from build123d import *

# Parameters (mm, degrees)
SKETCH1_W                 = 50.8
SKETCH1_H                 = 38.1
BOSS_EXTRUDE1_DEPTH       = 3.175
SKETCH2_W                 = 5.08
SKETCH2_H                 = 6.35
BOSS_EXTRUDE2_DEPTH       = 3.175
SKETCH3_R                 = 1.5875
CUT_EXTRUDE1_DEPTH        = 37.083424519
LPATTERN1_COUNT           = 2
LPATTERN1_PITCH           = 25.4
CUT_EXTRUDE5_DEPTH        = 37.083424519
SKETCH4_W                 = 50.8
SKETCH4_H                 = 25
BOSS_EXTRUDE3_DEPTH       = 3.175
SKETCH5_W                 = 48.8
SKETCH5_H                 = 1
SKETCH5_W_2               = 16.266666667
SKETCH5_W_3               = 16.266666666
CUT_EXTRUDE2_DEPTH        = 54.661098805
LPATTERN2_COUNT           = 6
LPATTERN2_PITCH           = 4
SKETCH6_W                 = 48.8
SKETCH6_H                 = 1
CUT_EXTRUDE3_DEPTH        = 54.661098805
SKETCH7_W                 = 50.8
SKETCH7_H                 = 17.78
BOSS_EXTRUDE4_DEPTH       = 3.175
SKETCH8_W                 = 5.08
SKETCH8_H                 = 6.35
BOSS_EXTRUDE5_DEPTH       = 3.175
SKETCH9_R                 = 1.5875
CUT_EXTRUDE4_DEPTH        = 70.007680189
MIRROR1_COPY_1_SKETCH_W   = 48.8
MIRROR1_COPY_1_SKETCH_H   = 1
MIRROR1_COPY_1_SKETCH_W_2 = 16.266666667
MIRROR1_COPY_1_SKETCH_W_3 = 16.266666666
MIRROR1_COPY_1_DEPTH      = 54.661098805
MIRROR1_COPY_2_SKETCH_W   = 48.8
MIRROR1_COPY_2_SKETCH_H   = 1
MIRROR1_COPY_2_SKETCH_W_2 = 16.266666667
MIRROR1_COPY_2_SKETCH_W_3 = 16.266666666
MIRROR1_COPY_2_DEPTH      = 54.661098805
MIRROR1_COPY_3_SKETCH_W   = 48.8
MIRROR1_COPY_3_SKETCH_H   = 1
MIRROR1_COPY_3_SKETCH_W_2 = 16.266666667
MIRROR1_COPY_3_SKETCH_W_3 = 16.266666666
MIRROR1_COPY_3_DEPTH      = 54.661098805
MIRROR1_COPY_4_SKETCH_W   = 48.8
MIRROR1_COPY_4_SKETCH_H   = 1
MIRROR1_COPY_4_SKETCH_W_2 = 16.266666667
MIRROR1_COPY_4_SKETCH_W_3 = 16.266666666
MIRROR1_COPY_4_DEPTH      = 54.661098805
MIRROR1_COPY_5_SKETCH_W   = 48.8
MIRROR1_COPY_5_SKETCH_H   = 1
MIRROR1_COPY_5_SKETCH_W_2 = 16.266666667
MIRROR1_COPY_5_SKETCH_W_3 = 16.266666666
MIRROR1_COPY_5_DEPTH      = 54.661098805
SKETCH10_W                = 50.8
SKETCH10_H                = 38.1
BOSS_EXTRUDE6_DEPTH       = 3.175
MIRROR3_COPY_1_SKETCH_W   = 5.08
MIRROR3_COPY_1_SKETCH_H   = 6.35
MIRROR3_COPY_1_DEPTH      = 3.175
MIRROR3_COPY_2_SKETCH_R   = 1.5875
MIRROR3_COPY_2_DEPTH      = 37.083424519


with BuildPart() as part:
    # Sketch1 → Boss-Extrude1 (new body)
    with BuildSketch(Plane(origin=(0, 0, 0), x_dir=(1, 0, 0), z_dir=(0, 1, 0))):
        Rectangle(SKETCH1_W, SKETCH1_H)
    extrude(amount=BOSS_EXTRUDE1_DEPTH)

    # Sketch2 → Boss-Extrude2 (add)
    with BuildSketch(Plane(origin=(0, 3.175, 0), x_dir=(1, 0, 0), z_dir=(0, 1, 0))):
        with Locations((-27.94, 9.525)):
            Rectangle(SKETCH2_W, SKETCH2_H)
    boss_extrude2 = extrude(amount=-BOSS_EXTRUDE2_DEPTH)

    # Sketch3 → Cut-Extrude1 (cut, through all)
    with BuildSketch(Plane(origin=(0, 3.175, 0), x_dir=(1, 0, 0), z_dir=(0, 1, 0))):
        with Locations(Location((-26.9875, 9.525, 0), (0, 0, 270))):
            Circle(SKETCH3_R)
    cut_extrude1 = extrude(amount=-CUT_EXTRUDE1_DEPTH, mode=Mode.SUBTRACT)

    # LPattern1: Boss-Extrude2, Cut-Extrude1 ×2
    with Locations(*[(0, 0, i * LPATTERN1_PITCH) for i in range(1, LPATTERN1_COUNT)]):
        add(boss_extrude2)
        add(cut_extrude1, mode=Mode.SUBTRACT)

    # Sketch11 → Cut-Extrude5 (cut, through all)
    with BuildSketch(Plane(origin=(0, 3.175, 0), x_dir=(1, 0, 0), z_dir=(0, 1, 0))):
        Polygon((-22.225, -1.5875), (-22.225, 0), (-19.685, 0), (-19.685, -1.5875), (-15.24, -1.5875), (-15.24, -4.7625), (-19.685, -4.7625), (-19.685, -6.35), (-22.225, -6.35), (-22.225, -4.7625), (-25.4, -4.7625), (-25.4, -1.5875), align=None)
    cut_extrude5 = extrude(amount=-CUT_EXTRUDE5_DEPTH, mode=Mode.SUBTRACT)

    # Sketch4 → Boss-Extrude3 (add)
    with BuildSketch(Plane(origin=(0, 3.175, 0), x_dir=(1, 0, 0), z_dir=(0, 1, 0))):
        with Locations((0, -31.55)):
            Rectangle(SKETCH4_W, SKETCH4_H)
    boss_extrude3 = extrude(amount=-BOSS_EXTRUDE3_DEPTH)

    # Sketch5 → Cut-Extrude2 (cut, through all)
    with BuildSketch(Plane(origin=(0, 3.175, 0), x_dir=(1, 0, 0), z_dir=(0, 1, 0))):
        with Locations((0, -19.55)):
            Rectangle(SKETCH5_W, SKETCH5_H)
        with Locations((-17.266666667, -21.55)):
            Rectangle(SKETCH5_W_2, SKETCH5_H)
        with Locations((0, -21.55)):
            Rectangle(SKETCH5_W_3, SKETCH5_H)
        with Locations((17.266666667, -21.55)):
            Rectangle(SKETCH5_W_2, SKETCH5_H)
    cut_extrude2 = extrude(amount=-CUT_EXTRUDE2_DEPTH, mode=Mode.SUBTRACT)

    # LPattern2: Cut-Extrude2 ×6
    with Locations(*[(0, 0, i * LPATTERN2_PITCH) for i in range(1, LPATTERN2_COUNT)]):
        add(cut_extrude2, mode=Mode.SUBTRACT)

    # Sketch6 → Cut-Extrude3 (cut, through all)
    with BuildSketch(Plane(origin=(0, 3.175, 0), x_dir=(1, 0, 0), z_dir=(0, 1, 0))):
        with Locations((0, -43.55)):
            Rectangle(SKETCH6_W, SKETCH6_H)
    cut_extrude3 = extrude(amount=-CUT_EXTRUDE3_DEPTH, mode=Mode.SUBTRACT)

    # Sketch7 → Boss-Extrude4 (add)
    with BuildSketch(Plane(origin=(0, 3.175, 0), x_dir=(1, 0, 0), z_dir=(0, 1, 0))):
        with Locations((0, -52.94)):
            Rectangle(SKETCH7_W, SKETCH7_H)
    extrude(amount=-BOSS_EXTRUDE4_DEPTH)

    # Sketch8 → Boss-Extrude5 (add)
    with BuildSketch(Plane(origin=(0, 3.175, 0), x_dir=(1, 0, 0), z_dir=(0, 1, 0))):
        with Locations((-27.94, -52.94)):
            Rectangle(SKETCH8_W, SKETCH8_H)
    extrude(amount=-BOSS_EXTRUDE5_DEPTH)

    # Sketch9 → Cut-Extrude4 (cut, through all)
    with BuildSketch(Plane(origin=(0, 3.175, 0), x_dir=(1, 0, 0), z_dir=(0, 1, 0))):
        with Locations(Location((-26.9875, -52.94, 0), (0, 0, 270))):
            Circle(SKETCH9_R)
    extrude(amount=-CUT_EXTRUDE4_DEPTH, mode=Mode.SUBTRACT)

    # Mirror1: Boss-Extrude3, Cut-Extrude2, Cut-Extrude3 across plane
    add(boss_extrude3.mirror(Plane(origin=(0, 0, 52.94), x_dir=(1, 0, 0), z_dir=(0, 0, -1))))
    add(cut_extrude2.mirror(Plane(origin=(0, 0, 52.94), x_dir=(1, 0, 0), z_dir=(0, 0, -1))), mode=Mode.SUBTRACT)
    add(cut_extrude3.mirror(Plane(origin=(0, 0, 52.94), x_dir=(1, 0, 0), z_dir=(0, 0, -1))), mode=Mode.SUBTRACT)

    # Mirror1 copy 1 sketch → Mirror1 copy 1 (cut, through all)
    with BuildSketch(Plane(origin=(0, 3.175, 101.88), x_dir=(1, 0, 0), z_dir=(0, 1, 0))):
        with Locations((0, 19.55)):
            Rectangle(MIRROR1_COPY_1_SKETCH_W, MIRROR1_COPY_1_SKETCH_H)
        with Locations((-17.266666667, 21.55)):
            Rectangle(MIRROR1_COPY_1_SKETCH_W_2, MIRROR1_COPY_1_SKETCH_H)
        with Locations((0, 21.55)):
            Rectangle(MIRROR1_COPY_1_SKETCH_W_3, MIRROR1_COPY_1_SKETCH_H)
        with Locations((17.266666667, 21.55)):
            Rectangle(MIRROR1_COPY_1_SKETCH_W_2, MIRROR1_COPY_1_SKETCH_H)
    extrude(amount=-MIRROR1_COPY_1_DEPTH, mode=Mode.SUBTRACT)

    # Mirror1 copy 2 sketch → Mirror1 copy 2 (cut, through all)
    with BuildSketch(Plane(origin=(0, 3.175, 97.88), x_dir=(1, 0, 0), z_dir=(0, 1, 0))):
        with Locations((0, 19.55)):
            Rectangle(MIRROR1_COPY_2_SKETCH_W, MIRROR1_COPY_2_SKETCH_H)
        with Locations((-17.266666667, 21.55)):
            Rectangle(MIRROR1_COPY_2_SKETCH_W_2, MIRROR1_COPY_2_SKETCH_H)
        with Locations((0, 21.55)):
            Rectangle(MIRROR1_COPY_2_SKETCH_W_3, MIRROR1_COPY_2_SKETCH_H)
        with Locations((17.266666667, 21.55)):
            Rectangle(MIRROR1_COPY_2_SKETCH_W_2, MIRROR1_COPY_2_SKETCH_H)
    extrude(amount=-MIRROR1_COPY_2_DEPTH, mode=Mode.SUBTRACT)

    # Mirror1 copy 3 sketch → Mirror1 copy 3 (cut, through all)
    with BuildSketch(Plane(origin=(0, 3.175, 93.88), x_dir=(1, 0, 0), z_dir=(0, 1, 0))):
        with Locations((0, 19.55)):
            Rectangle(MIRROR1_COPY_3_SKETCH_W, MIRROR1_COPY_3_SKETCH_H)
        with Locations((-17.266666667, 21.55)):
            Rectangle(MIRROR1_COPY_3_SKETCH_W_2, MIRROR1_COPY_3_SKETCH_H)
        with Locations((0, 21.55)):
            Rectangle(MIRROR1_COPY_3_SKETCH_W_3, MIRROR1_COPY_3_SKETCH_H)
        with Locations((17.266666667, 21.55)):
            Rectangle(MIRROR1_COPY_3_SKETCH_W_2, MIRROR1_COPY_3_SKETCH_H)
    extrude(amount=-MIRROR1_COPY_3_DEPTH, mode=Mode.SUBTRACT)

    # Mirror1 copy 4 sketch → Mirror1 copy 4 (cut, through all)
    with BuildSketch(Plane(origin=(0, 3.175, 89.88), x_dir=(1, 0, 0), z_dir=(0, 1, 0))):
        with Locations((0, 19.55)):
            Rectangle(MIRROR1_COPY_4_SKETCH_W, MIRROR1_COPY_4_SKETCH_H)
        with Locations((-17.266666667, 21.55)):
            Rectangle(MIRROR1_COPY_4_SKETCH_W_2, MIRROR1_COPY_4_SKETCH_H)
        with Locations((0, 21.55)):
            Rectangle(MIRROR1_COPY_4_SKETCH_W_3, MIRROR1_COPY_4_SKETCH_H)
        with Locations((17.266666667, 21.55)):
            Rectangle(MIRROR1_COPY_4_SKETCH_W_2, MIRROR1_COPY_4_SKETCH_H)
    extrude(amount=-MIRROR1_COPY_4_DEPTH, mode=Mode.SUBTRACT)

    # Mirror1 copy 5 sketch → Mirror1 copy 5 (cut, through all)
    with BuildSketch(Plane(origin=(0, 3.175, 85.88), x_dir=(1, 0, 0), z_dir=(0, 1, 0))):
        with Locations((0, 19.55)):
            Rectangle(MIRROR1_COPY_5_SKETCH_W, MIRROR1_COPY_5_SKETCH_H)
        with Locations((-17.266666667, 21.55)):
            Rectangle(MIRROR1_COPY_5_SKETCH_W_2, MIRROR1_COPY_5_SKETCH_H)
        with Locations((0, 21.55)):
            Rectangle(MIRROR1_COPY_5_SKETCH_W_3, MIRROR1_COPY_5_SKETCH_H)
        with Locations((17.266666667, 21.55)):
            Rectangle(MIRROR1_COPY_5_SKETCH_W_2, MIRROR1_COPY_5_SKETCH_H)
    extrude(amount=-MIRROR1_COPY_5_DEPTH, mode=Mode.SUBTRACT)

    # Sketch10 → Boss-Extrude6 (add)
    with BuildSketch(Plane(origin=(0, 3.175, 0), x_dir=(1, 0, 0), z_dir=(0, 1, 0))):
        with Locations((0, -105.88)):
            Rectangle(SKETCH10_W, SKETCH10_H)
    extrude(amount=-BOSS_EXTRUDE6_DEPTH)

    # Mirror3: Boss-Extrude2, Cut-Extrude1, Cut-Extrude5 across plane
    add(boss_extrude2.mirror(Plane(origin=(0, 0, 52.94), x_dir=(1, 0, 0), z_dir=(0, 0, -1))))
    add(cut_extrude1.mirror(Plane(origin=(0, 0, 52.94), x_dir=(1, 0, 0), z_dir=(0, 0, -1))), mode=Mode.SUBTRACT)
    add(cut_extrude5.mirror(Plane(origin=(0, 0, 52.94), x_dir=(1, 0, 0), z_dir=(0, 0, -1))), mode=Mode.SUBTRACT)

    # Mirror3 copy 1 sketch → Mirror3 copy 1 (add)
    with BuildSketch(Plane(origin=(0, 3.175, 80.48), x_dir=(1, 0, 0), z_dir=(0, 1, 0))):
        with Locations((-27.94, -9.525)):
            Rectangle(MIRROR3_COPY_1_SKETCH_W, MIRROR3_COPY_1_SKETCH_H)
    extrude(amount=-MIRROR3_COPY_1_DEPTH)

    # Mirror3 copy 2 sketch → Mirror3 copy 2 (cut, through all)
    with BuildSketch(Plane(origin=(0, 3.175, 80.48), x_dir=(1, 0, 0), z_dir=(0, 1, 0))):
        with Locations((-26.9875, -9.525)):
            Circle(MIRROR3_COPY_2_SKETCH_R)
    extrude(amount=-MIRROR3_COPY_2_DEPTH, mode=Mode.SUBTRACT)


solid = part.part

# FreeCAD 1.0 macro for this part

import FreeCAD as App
import Part
import Sketcher

V = App.Vector
Q = App.Units.Quantity


def add_polygon(sketch, points):
    """Adds a closed chain of lines whose ends are joined by coincident constraints."""
    first, n = sketch.GeometryCount, len(points)
    for a, b in zip(points, points[1:] + points[:1]):
        sketch.addGeometry(Part.LineSegment(App.Vector(*a, 0), App.Vector(*b, 0)), False)
    for i in range(n):
        sketch.addConstraint(Sketcher.Constraint("Coincident", first + i, 2, first + (i + 1) % n, 1))

doc = App.newDocument("Part")
body = doc.addObject("PartDesign::Body", "Body")

# Sketch on XZ plane
sketch1 = body.newObject("Sketcher::SketchObject", "Sketch")
sketch1.AttachmentSupport = (doc.getObject("XZ_Plane"), [""])
sketch1.MapMode = "FlatFace"
add_polygon(sketch1, [(-25.4, -19.05), (-25.4, 19.05), (25.4, 19.05), (25.4, -19.05)])  # lines 0-3
sketch1.addConstraint(Sketcher.Constraint("Vertical", 0))
sketch1.addConstraint(Sketcher.Constraint("Horizontal", 1))
sketch1.addConstraint(Sketcher.Constraint("Vertical", 2))
sketch1.addConstraint(Sketcher.Constraint("Horizontal", 3))
sketch1.addConstraint(Sketcher.Constraint("Symmetric", 0, 2, 2, 2, -1, 1))
sketch1.addConstraint(Sketcher.Constraint("DistanceX", 1, 1, 1, 2, Q("2 in")))
sketch1.addConstraint(Sketcher.Constraint("DistanceY", 0, 1, 0, 2, Q("1.5 in")))
pad1 = body.newObject("PartDesign::Pad", "Pad")
pad1.Profile = sketch1
pad1.Length = Q("0.125 in")
pad1.Reversed = True

# Sketch on XZ plane
sketch2 = body.newObject("Sketcher::SketchObject", "Sketch001")
sketch2.AttachmentSupport = (doc.getObject("XZ_Plane"), [""])
sketch2.MapMode = "FlatFace"
sketch2.AttachmentOffset = App.Placement(V(0, 0, -0.125 * 25.4), App.Rotation())
add_polygon(sketch2, [(-30.48, -12.7), (-30.48, -6.35), (-25.4, -6.35), (-25.4, -12.7)])  # lines 0-3
sketch2.addConstraint(Sketcher.Constraint("Vertical", 0))
sketch2.addConstraint(Sketcher.Constraint("Horizontal", 1))
sketch2.addConstraint(Sketcher.Constraint("Vertical", 2))
sketch2.addConstraint(Sketcher.Constraint("Horizontal", 3))
sketch2.addConstraint(Sketcher.Constraint("DistanceX", 1, 1, 1, 2, Q("0.2 in")))
sketch2.addConstraint(Sketcher.Constraint("DistanceX", 1, 2, -1, 1, Q("1 in")))
sketch2.addConstraint(Sketcher.Constraint("DistanceY", 0, 1, 0, 2, Q("0.25 in")))
sketch2.addConstraint(Sketcher.Constraint("DistanceY", 2, 2, -1, 1, Q("0.5 in")))
pad2 = body.newObject("PartDesign::Pad", "Pad001")
pad2.Profile = sketch2
pad2.Length = Q("0.125 in")

# Sketch on XZ plane
sketch3 = body.newObject("Sketcher::SketchObject", "Sketch002")
sketch3.AttachmentSupport = (doc.getObject("XZ_Plane"), [""])
sketch3.MapMode = "FlatFace"
sketch3.AttachmentOffset = App.Placement(V(0, 0, -0.125 * 25.4), App.Rotation())
sketch3.addGeometry(Part.Circle(V(-26.9875, -9.525, 0), V(0, 0, 1), 1.5875), False)
sketch3.addConstraint(Sketcher.Constraint("Diameter", 0, Q("0.125 in")))
sketch3.addConstraint(Sketcher.Constraint("DistanceX", 0, 3, -1, 1, Q("1.0625 in")))
sketch3.addConstraint(Sketcher.Constraint("DistanceY", 0, 3, -1, 1, Q("0.375 in")))
pocket1 = body.newObject("PartDesign::Pocket", "Pocket")
pocket1.Profile = sketch3
pocket1.Type = "ThroughAll"
pocket1.Reversed = True
doc.recompute()

linearpattern = body.newObject("PartDesign::LinearPattern", "LinearPattern")
linearpattern.Originals = [pad2, pocket1]
linearpattern.Direction = (doc.getObject("Z_Axis"), [""])
linearpattern.Mode = "offset"
linearpattern.Offset = Q("1 in")
linearpattern.Occurrences = 2
body.Tip = linearpattern

# Sketch on XZ plane
sketch4 = body.newObject("Sketcher::SketchObject", "Sketch003")
sketch4.AttachmentSupport = (doc.getObject("XZ_Plane"), [""])
sketch4.MapMode = "FlatFace"
sketch4.AttachmentOffset = App.Placement(V(0, 0, -0.125 * 25.4), App.Rotation())
add_polygon(sketch4, [(-22.225, 0), (-22.225, 1.5875), (-25.4, 1.5875), (-25.4, 4.7625), (-22.225, 4.7625), (-22.225, 6.35), (-19.685, 6.35), (-19.685, 4.7625), (-15.24, 4.7625), (-15.24, 1.5875), (-19.685, 1.5875), (-19.685, 0)])  # lines 0-11
sketch4.addConstraint(Sketcher.Constraint("Vertical", 0))
sketch4.addConstraint(Sketcher.Constraint("Horizontal", 1))
sketch4.addConstraint(Sketcher.Constraint("Vertical", 2))
sketch4.addConstraint(Sketcher.Constraint("Horizontal", 3))
sketch4.addConstraint(Sketcher.Constraint("Vertical", 4))
sketch4.addConstraint(Sketcher.Constraint("Horizontal", 5))
sketch4.addConstraint(Sketcher.Constraint("Vertical", 6))
sketch4.addConstraint(Sketcher.Constraint("Horizontal", 7))
sketch4.addConstraint(Sketcher.Constraint("Vertical", 8))
sketch4.addConstraint(Sketcher.Constraint("Horizontal", 9))
sketch4.addConstraint(Sketcher.Constraint("Vertical", 10))
sketch4.addConstraint(Sketcher.Constraint("Horizontal", 11))
sketch4.addConstraint(Sketcher.Constraint("PointOnObject", 10, 2, -1))
sketch4.addConstraint(Sketcher.Constraint("Horizontal", 3, 2, 6, 2))
sketch4.addConstraint(Sketcher.Constraint("Horizontal", 1, 2, 8, 2))
sketch4.addConstraint(Sketcher.Constraint("Vertical", 0, 2, 3, 2))
sketch4.addConstraint(Sketcher.Constraint("Vertical", 6, 2, 9, 2))
sketch4.addConstraint(Sketcher.Constraint("Equal", 3, 2))
sketch4.addConstraint(Sketcher.Constraint("Equal", 0, 4))
sketch4.addConstraint(Sketcher.Constraint("DistanceX", 5, 1, 5, 2, Q("0.1 in")))
sketch4.addConstraint(Sketcher.Constraint("DistanceX", 1, 2, -1, 1, Q("1 in")))
sketch4.addConstraint(Sketcher.Constraint("DistanceX", 7, 2, -1, 1, Q("0.6 in")))
sketch4.addConstraint(Sketcher.Constraint("DistanceX", 1, 2, 1, 1, Q("0.125 in")))
sketch4.addConstraint(Sketcher.Constraint("DistanceY", 0, 1, 0, 2, Q("0.0625 in")))
pocket2 = body.newObject("PartDesign::Pocket", "Pocket001")
pocket2.Profile = sketch4
pocket2.Type = "ThroughAll"
pocket2.Reversed = True

# Sketch on XZ plane
sketch5 = body.newObject("Sketcher::SketchObject", "Sketch004")
sketch5.AttachmentSupport = (doc.getObject("XZ_Plane"), [""])
sketch5.MapMode = "FlatFace"
sketch5.AttachmentOffset = App.Placement(V(0, 0, -0.125 * 25.4), App.Rotation())
add_polygon(sketch5, [(-25.4, 19.05), (-25.4, 44.05), (25.4, 44.05), (25.4, 19.05)])  # lines 0-3
sketch5.addConstraint(Sketcher.Constraint("Vertical", 0))
sketch5.addConstraint(Sketcher.Constraint("Horizontal", 1))
sketch5.addConstraint(Sketcher.Constraint("Vertical", 2))
sketch5.addConstraint(Sketcher.Constraint("Horizontal", 3))
sketch5.addConstraint(Sketcher.Constraint("DistanceX", 1, 1, 1, 2, Q("2 in")))
sketch5.addConstraint(Sketcher.Constraint("DistanceX", 0, 2, -1, 1, Q("1 in")))
sketch5.addConstraint(Sketcher.Constraint("DistanceY", -1, 1, 2, 2, Q("0.75 in")))
sketch5.addConstraint(Sketcher.Constraint("DistanceY", 0, 1, 0, 2, Q("25 mm")))
pad3 = body.newObject("PartDesign::Pad", "Pad002")
pad3.Profile = sketch5
pad3.Length = Q("0.125 in")

# Sketch on XZ plane
sketch6 = body.newObject("Sketcher::SketchObject", "Sketch005")
sketch6.AttachmentSupport = (doc.getObject("XZ_Plane"), [""])
sketch6.MapMode = "FlatFace"
sketch6.AttachmentOffset = App.Placement(V(0, 0, -0.125 * 25.4), App.Rotation())
add_polygon(sketch6, [(-24.4, 19.05), (-24.4, 20.05), (24.4, 20.05), (24.4, 19.05)])  # lines 0-3
add_polygon(sketch6, [(-25.4, 21.05), (-25.4, 22.05), (-9.133333, 22.05), (-9.133333, 21.05)])  # lines 4-7
add_polygon(sketch6, [(-8.133333, 21.05), (-8.133333, 22.05), (8.133333, 22.05), (8.133333, 21.05)])  # lines 8-11
add_polygon(sketch6, [(9.133333, 21.05), (9.133333, 22.05), (25.4, 22.05), (25.4, 21.05)])  # lines 12-15
sketch6.addConstraint(Sketcher.Constraint("Vertical", 0))
sketch6.addConstraint(Sketcher.Constraint("Horizontal", 1))
sketch6.addConstraint(Sketcher.Constraint("Vertical", 2))
sketch6.addConstraint(Sketcher.Constraint("Horizontal", 3))
sketch6.addConstraint(Sketcher.Constraint("Vertical", 4))
sketch6.addConstraint(Sketcher.Constraint("Horizontal", 5))
sketch6.addConstraint(Sketcher.Constraint("Vertical", 6))
sketch6.addConstraint(Sketcher.Constraint("Horizontal", 7))
sketch6.addConstraint(Sketcher.Constraint("Vertical", 8))
sketch6.addConstraint(Sketcher.Constraint("Horizontal", 9))
sketch6.addConstraint(Sketcher.Constraint("Vertical", 10))
sketch6.addConstraint(Sketcher.Constraint("Horizontal", 11))
sketch6.addConstraint(Sketcher.Constraint("Vertical", 12))
sketch6.addConstraint(Sketcher.Constraint("Horizontal", 13))
sketch6.addConstraint(Sketcher.Constraint("Vertical", 14))
sketch6.addConstraint(Sketcher.Constraint("Horizontal", 15))
sketch6.addConstraint(Sketcher.Constraint("Symmetric", 5, 2, 12, 2, -2))
sketch6.addConstraint(Sketcher.Constraint("Symmetric", 7, 2, 14, 2, -2))
sketch6.addConstraint(Sketcher.Constraint("Horizontal", 5, 2, 8, 2))
sketch6.addConstraint(Sketcher.Constraint("Horizontal", 7, 2, 10, 2))
sketch6.addConstraint(Sketcher.Constraint("Equal", 7, 9))
sketch6.addConstraint(Sketcher.Constraint("Equal", 2, 4))
sketch6.addConstraint(Sketcher.Constraint("DistanceX", 4, 2, -1, 1, Q("1 in")))
sketch6.addConstraint(Sketcher.Constraint("DistanceY", -1, 1, 2, 2, Q("0.75 in")))
sketch6.addConstraint(Sketcher.Constraint("DistanceX", 1, 1, 1, 2, Q("48.8 mm")))
sketch6.addConstraint(Sketcher.Constraint("DistanceY", 0, 1, 0, 2, Q("1 mm")))
sketch6.addConstraint(Sketcher.Constraint("DistanceX", 0, 2, -1, 1, Q("24.4 mm")))
sketch6.addConstraint(Sketcher.Constraint("DistanceY", -1, 1, 4, 2, Q("22.05 mm")))
sketch6.addConstraint(Sketcher.Constraint("DistanceX", 5, 2, 8, 2, Q("1 mm")))
sketch6.addConstraint(Sketcher.Constraint("DistanceX", 9, 2, 12, 2, Q("1 mm")))
pocket3 = body.newObject("PartDesign::Pocket", "Pocket002")
pocket3.Profile = sketch6
pocket3.Type = "ThroughAll"
pocket3.Reversed = True
doc.recompute()

linearpattern2 = body.newObject("PartDesign::LinearPattern", "LinearPattern001")
linearpattern2.Originals = [pocket3]
linearpattern2.Direction = (doc.getObject("Z_Axis"), [""])
linearpattern2.Mode = "offset"
linearpattern2.Offset = 4
linearpattern2.Occurrences = 6
body.Tip = linearpattern2

# Sketch on XZ plane
sketch7 = body.newObject("Sketcher::SketchObject", "Sketch006")
sketch7.AttachmentSupport = (doc.getObject("XZ_Plane"), [""])
sketch7.MapMode = "FlatFace"
sketch7.AttachmentOffset = App.Placement(V(0, 0, -0.125 * 25.4), App.Rotation())
add_polygon(sketch7, [(-24.4, 43.05), (-24.4, 44.05), (24.4, 44.05), (24.4, 43.05)])  # lines 0-3
sketch7.addConstraint(Sketcher.Constraint("Vertical", 0))
sketch7.addConstraint(Sketcher.Constraint("Horizontal", 1))
sketch7.addConstraint(Sketcher.Constraint("Vertical", 2))
sketch7.addConstraint(Sketcher.Constraint("Horizontal", 3))
sketch7.addConstraint(Sketcher.Constraint("DistanceX", 1, 1, 1, 2, Q("48.8 mm")))
sketch7.addConstraint(Sketcher.Constraint("DistanceY", 0, 1, 0, 2, Q("1 mm")))
sketch7.addConstraint(Sketcher.Constraint("DistanceX", 0, 2, -1, 1, Q("24.4 mm")))
sketch7.addConstraint(Sketcher.Constraint("DistanceY", -1, 1, 0, 2, Q("44.05 mm")))
pocket4 = body.newObject("PartDesign::Pocket", "Pocket003")
pocket4.Profile = sketch7
pocket4.Type = "ThroughAll"
pocket4.Reversed = True

# Sketch on XZ plane
sketch8 = body.newObject("Sketcher::SketchObject", "Sketch007")
sketch8.AttachmentSupport = (doc.getObject("XZ_Plane"), [""])
sketch8.MapMode = "FlatFace"
sketch8.AttachmentOffset = App.Placement(V(0, 0, -0.125 * 25.4), App.Rotation())
add_polygon(sketch8, [(-25.4, 44.05), (-25.4, 61.83), (25.4, 61.83), (25.4, 44.05)])  # lines 0-3
sketch8.addConstraint(Sketcher.Constraint("Vertical", 0))
sketch8.addConstraint(Sketcher.Constraint("Horizontal", 1))
sketch8.addConstraint(Sketcher.Constraint("Vertical", 2))
sketch8.addConstraint(Sketcher.Constraint("Horizontal", 3))
sketch8.addConstraint(Sketcher.Constraint("DistanceX", 1, 1, 1, 2, Q("2 in")))
sketch8.addConstraint(Sketcher.Constraint("DistanceY", 0, 1, 0, 2, Q("0.7 in")))
sketch8.addConstraint(Sketcher.Constraint("DistanceX", 0, 2, -1, 1, Q("1 in")))
sketch8.addConstraint(Sketcher.Constraint("DistanceY", -1, 1, 0, 2, Q("61.83 mm")))
pad4 = body.newObject("PartDesign::Pad", "Pad003")
pad4.Profile = sketch8
pad4.Length = Q("0.125 in")

# Sketch on XZ plane
sketch9 = body.newObject("Sketcher::SketchObject", "Sketch008")
sketch9.AttachmentSupport = (doc.getObject("XZ_Plane"), [""])
sketch9.MapMode = "FlatFace"
sketch9.AttachmentOffset = App.Placement(V(0, 0, -0.125 * 25.4), App.Rotation())
add_polygon(sketch9, [(-30.48, 49.765), (-30.48, 56.115), (-25.4, 56.115), (-25.4, 49.765)])  # lines 0-3
sketch9.addConstraint(Sketcher.Constraint("Vertical", 0))
sketch9.addConstraint(Sketcher.Constraint("Horizontal", 1))
sketch9.addConstraint(Sketcher.Constraint("Vertical", 2))
sketch9.addConstraint(Sketcher.Constraint("Horizontal", 3))
sketch9.addConstraint(Sketcher.Constraint("DistanceX", 1, 1, 1, 2, Q("0.2 in")))
sketch9.addConstraint(Sketcher.Constraint("DistanceX", 1, 2, -1, 1, Q("1 in")))
sketch9.addConstraint(Sketcher.Constraint("DistanceY", 0, 1, 0, 2, Q("0.25 in")))
sketch9.addConstraint(Sketcher.Constraint("DistanceY", -1, 1, 0, 2, Q("56.115 mm")))
pad5 = body.newObject("PartDesign::Pad", "Pad004")
pad5.Profile = sketch9
pad5.Length = Q("0.125 in")

# Sketch on XZ plane
sketch10 = body.newObject("Sketcher::SketchObject", "Sketch009")
sketch10.AttachmentSupport = (doc.getObject("XZ_Plane"), [""])
sketch10.MapMode = "FlatFace"
sketch10.AttachmentOffset = App.Placement(V(0, 0, -0.125 * 25.4), App.Rotation())
sketch10.addGeometry(Part.Circle(V(-26.9875, 52.94, 0), V(0, 0, 1), 1.5875), False)
sketch10.addConstraint(Sketcher.Constraint("Diameter", 0, Q("0.125 in")))
sketch10.addConstraint(Sketcher.Constraint("DistanceX", 0, 3, -1, 1, Q("1.0625 in")))
sketch10.addConstraint(Sketcher.Constraint("DistanceY", -1, 1, 0, 3, Q("52.94 mm")))
pocket5 = body.newObject("PartDesign::Pocket", "Pocket004")
pocket5.Profile = sketch10
pocket5.Type = "ThroughAll"
pocket5.Reversed = True
doc.recompute()

datumplane = body.newObject("PartDesign::Plane", "DatumPlane")
datumplane.AttachmentSupport = (doc.getObject("XY_Plane"), [""])
datumplane.MapMode = "FlatFace"
datumplane.AttachmentOffset = App.Placement(V(0, 0, 52.94), App.Rotation())
mirrored = body.newObject("PartDesign::Mirrored", "Mirrored")
mirrored.Originals = [pad3, pocket3, pocket4]
mirrored.MirrorPlane = (datumplane, [""])
body.Tip = mirrored

# Sketch on XZ plane
sketch11 = body.newObject("Sketcher::SketchObject", "Sketch010")
sketch11.AttachmentSupport = (doc.getObject("XZ_Plane"), [""])
sketch11.MapMode = "FlatFace"
sketch11.AttachmentOffset = App.Placement(V(0, 0, -0.125 * 25.4), App.Rotation())
add_polygon(sketch11, [(-24.4, 81.83), (-24.4, 82.83), (24.4, 82.83), (24.4, 81.83)])  # lines 0-3
add_polygon(sketch11, [(-25.4, 79.83), (-25.4, 80.83), (-9.133333, 80.83), (-9.133333, 79.83)])  # lines 4-7
add_polygon(sketch11, [(-8.133333, 79.83), (-8.133333, 80.83), (8.133333, 80.83), (8.133333, 79.83)])  # lines 8-11
add_polygon(sketch11, [(9.133333, 79.83), (9.133333, 80.83), (25.4, 80.83), (25.4, 79.83)])  # lines 12-15
sketch11.addConstraint(Sketcher.Constraint("Vertical", 0))
sketch11.addConstraint(Sketcher.Constraint("Horizontal", 1))
sketch11.addConstraint(Sketcher.Constraint("Vertical", 2))
sketch11.addConstraint(Sketcher.Constraint("Horizontal", 3))
sketch11.addConstraint(Sketcher.Constraint("Vertical", 4))
sketch11.addConstraint(Sketcher.Constraint("Horizontal", 5))
sketch11.addConstraint(Sketcher.Constraint("Vertical", 6))
sketch11.addConstraint(Sketcher.Constraint("Horizontal", 7))
sketch11.addConstraint(Sketcher.Constraint("Vertical", 8))
sketch11.addConstraint(Sketcher.Constraint("Horizontal", 9))
sketch11.addConstraint(Sketcher.Constraint("Vertical", 10))
sketch11.addConstraint(Sketcher.Constraint("Horizontal", 11))
sketch11.addConstraint(Sketcher.Constraint("Vertical", 12))
sketch11.addConstraint(Sketcher.Constraint("Horizontal", 13))
sketch11.addConstraint(Sketcher.Constraint("Vertical", 14))
sketch11.addConstraint(Sketcher.Constraint("Horizontal", 15))
sketch11.addConstraint(Sketcher.Constraint("Symmetric", 5, 2, 12, 2, -2))
sketch11.addConstraint(Sketcher.Constraint("Symmetric", 7, 2, 14, 2, -2))
sketch11.addConstraint(Sketcher.Constraint("Horizontal", 5, 2, 8, 2))
sketch11.addConstraint(Sketcher.Constraint("Horizontal", 7, 2, 10, 2))
sketch11.addConstraint(Sketcher.Constraint("Equal", 7, 9))
sketch11.addConstraint(Sketcher.Constraint("Equal", 2, 4))
sketch11.addConstraint(Sketcher.Constraint("DistanceX", 4, 2, -1, 1, Q("1 in")))
sketch11.addConstraint(Sketcher.Constraint("DistanceX", 1, 1, 1, 2, Q("48.8 mm")))
sketch11.addConstraint(Sketcher.Constraint("DistanceY", 0, 1, 0, 2, Q("1 mm")))
sketch11.addConstraint(Sketcher.Constraint("DistanceX", 0, 2, -1, 1, Q("24.4 mm")))
sketch11.addConstraint(Sketcher.Constraint("DistanceY", -1, 1, 0, 2, Q("82.83 mm")))
sketch11.addConstraint(Sketcher.Constraint("DistanceY", -1, 1, 4, 2, Q("80.83 mm")))
sketch11.addConstraint(Sketcher.Constraint("DistanceX", 5, 2, 8, 2, Q("1 mm")))
sketch11.addConstraint(Sketcher.Constraint("DistanceX", 9, 2, 12, 2, Q("1 mm")))
pocket6 = body.newObject("PartDesign::Pocket", "Pocket005")
pocket6.Profile = sketch11
pocket6.Type = "ThroughAll"
pocket6.Reversed = True

# Sketch on XZ plane
sketch12 = body.newObject("Sketcher::SketchObject", "Sketch011")
sketch12.AttachmentSupport = (doc.getObject("XZ_Plane"), [""])
sketch12.MapMode = "FlatFace"
sketch12.AttachmentOffset = App.Placement(V(0, 0, -0.125 * 25.4), App.Rotation())
add_polygon(sketch12, [(-24.4, 77.83), (-24.4, 78.83), (24.4, 78.83), (24.4, 77.83)])  # lines 0-3
add_polygon(sketch12, [(-25.4, 75.83), (-25.4, 76.83), (-9.133333, 76.83), (-9.133333, 75.83)])  # lines 4-7
add_polygon(sketch12, [(-8.133333, 75.83), (-8.133333, 76.83), (8.133333, 76.83), (8.133333, 75.83)])  # lines 8-11
add_polygon(sketch12, [(9.133333, 75.83), (9.133333, 76.83), (25.4, 76.83), (25.4, 75.83)])  # lines 12-15
sketch12.addConstraint(Sketcher.Constraint("Vertical", 0))
sketch12.addConstraint(Sketcher.Constraint("Horizontal", 1))
sketch12.addConstraint(Sketcher.Constraint("Vertical", 2))
sketch12.addConstraint(Sketcher.Constraint("Horizontal", 3))
sketch12.addConstraint(Sketcher.Constraint("Vertical", 4))
sketch12.addConstraint(Sketcher.Constraint("Horizontal", 5))
sketch12.addConstraint(Sketcher.Constraint("Vertical", 6))
sketch12.addConstraint(Sketcher.Constraint("Horizontal", 7))
sketch12.addConstraint(Sketcher.Constraint("Vertical", 8))
sketch12.addConstraint(Sketcher.Constraint("Horizontal", 9))
sketch12.addConstraint(Sketcher.Constraint("Vertical", 10))
sketch12.addConstraint(Sketcher.Constraint("Horizontal", 11))
sketch12.addConstraint(Sketcher.Constraint("Vertical", 12))
sketch12.addConstraint(Sketcher.Constraint("Horizontal", 13))
sketch12.addConstraint(Sketcher.Constraint("Vertical", 14))
sketch12.addConstraint(Sketcher.Constraint("Horizontal", 15))
sketch12.addConstraint(Sketcher.Constraint("Symmetric", 5, 2, 12, 2, -2))
sketch12.addConstraint(Sketcher.Constraint("Symmetric", 7, 2, 14, 2, -2))
sketch12.addConstraint(Sketcher.Constraint("Horizontal", 5, 2, 8, 2))
sketch12.addConstraint(Sketcher.Constraint("Horizontal", 7, 2, 10, 2))
sketch12.addConstraint(Sketcher.Constraint("Equal", 7, 9))
sketch12.addConstraint(Sketcher.Constraint("Equal", 2, 4))
sketch12.addConstraint(Sketcher.Constraint("DistanceX", 4, 2, -1, 1, Q("1 in")))
sketch12.addConstraint(Sketcher.Constraint("DistanceX", 1, 1, 1, 2, Q("48.8 mm")))
sketch12.addConstraint(Sketcher.Constraint("DistanceY", 0, 1, 0, 2, Q("1 mm")))
sketch12.addConstraint(Sketcher.Constraint("DistanceX", 0, 2, -1, 1, Q("24.4 mm")))
sketch12.addConstraint(Sketcher.Constraint("DistanceY", -1, 1, 0, 2, Q("78.83 mm")))
sketch12.addConstraint(Sketcher.Constraint("DistanceY", -1, 1, 4, 2, Q("76.83 mm")))
sketch12.addConstraint(Sketcher.Constraint("DistanceX", 5, 2, 8, 2, Q("1 mm")))
sketch12.addConstraint(Sketcher.Constraint("DistanceX", 9, 2, 12, 2, Q("1 mm")))
pocket7 = body.newObject("PartDesign::Pocket", "Pocket006")
pocket7.Profile = sketch12
pocket7.Type = "ThroughAll"
pocket7.Reversed = True

# Sketch on XZ plane
sketch13 = body.newObject("Sketcher::SketchObject", "Sketch012")
sketch13.AttachmentSupport = (doc.getObject("XZ_Plane"), [""])
sketch13.MapMode = "FlatFace"
sketch13.AttachmentOffset = App.Placement(V(0, 0, -0.125 * 25.4), App.Rotation())
add_polygon(sketch13, [(-24.4, 73.83), (-24.4, 74.83), (24.4, 74.83), (24.4, 73.83)])  # lines 0-3
add_polygon(sketch13, [(-25.4, 71.83), (-25.4, 72.83), (-9.133333, 72.83), (-9.133333, 71.83)])  # lines 4-7
add_polygon(sketch13, [(-8.133333, 71.83), (-8.133333, 72.83), (8.133333, 72.83), (8.133333, 71.83)])  # lines 8-11
add_polygon(sketch13, [(9.133333, 71.83), (9.133333, 72.83), (25.4, 72.83), (25.4, 71.83)])  # lines 12-15
sketch13.addConstraint(Sketcher.Constraint("Vertical", 0))
sketch13.addConstraint(Sketcher.Constraint("Horizontal", 1))
sketch13.addConstraint(Sketcher.Constraint("Vertical", 2))
sketch13.addConstraint(Sketcher.Constraint("Horizontal", 3))
sketch13.addConstraint(Sketcher.Constraint("Vertical", 4))
sketch13.addConstraint(Sketcher.Constraint("Horizontal", 5))
sketch13.addConstraint(Sketcher.Constraint("Vertical", 6))
sketch13.addConstraint(Sketcher.Constraint("Horizontal", 7))
sketch13.addConstraint(Sketcher.Constraint("Vertical", 8))
sketch13.addConstraint(Sketcher.Constraint("Horizontal", 9))
sketch13.addConstraint(Sketcher.Constraint("Vertical", 10))
sketch13.addConstraint(Sketcher.Constraint("Horizontal", 11))
sketch13.addConstraint(Sketcher.Constraint("Vertical", 12))
sketch13.addConstraint(Sketcher.Constraint("Horizontal", 13))
sketch13.addConstraint(Sketcher.Constraint("Vertical", 14))
sketch13.addConstraint(Sketcher.Constraint("Horizontal", 15))
sketch13.addConstraint(Sketcher.Constraint("Symmetric", 5, 2, 12, 2, -2))
sketch13.addConstraint(Sketcher.Constraint("Symmetric", 7, 2, 14, 2, -2))
sketch13.addConstraint(Sketcher.Constraint("Horizontal", 5, 2, 8, 2))
sketch13.addConstraint(Sketcher.Constraint("Horizontal", 7, 2, 10, 2))
sketch13.addConstraint(Sketcher.Constraint("Equal", 7, 9))
sketch13.addConstraint(Sketcher.Constraint("Equal", 2, 4))
sketch13.addConstraint(Sketcher.Constraint("DistanceX", 4, 2, -1, 1, Q("1 in")))
sketch13.addConstraint(Sketcher.Constraint("DistanceX", 1, 1, 1, 2, Q("48.8 mm")))
sketch13.addConstraint(Sketcher.Constraint("DistanceY", 0, 1, 0, 2, Q("1 mm")))
sketch13.addConstraint(Sketcher.Constraint("DistanceX", 0, 2, -1, 1, Q("24.4 mm")))
sketch13.addConstraint(Sketcher.Constraint("DistanceY", -1, 1, 0, 2, Q("74.83 mm")))
sketch13.addConstraint(Sketcher.Constraint("DistanceY", -1, 1, 4, 2, Q("72.83 mm")))
sketch13.addConstraint(Sketcher.Constraint("DistanceX", 5, 2, 8, 2, Q("1 mm")))
sketch13.addConstraint(Sketcher.Constraint("DistanceX", 9, 2, 12, 2, Q("1 mm")))
pocket8 = body.newObject("PartDesign::Pocket", "Pocket007")
pocket8.Profile = sketch13
pocket8.Type = "ThroughAll"
pocket8.Reversed = True

# Sketch on XZ plane
sketch14 = body.newObject("Sketcher::SketchObject", "Sketch013")
sketch14.AttachmentSupport = (doc.getObject("XZ_Plane"), [""])
sketch14.MapMode = "FlatFace"
sketch14.AttachmentOffset = App.Placement(V(0, 0, -0.125 * 25.4), App.Rotation())
add_polygon(sketch14, [(-24.4, 69.83), (-24.4, 70.83), (24.4, 70.83), (24.4, 69.83)])  # lines 0-3
add_polygon(sketch14, [(-25.4, 67.83), (-25.4, 68.83), (-9.133333, 68.83), (-9.133333, 67.83)])  # lines 4-7
add_polygon(sketch14, [(-8.133333, 67.83), (-8.133333, 68.83), (8.133333, 68.83), (8.133333, 67.83)])  # lines 8-11
add_polygon(sketch14, [(9.133333, 67.83), (9.133333, 68.83), (25.4, 68.83), (25.4, 67.83)])  # lines 12-15
sketch14.addConstraint(Sketcher.Constraint("Vertical", 0))
sketch14.addConstraint(Sketcher.Constraint("Horizontal", 1))
sketch14.addConstraint(Sketcher.Constraint("Vertical", 2))
sketch14.addConstraint(Sketcher.Constraint("Horizontal", 3))
sketch14.addConstraint(Sketcher.Constraint("Vertical", 4))
sketch14.addConstraint(Sketcher.Constraint("Horizontal", 5))
sketch14.addConstraint(Sketcher.Constraint("Vertical", 6))
sketch14.addConstraint(Sketcher.Constraint("Horizontal", 7))
sketch14.addConstraint(Sketcher.Constraint("Vertical", 8))
sketch14.addConstraint(Sketcher.Constraint("Horizontal", 9))
sketch14.addConstraint(Sketcher.Constraint("Vertical", 10))
sketch14.addConstraint(Sketcher.Constraint("Horizontal", 11))
sketch14.addConstraint(Sketcher.Constraint("Vertical", 12))
sketch14.addConstraint(Sketcher.Constraint("Horizontal", 13))
sketch14.addConstraint(Sketcher.Constraint("Vertical", 14))
sketch14.addConstraint(Sketcher.Constraint("Horizontal", 15))
sketch14.addConstraint(Sketcher.Constraint("Symmetric", 5, 2, 12, 2, -2))
sketch14.addConstraint(Sketcher.Constraint("Symmetric", 7, 2, 14, 2, -2))
sketch14.addConstraint(Sketcher.Constraint("Horizontal", 5, 2, 8, 2))
sketch14.addConstraint(Sketcher.Constraint("Horizontal", 7, 2, 10, 2))
sketch14.addConstraint(Sketcher.Constraint("Equal", 7, 9))
sketch14.addConstraint(Sketcher.Constraint("Equal", 2, 4))
sketch14.addConstraint(Sketcher.Constraint("DistanceX", 4, 2, -1, 1, Q("1 in")))
sketch14.addConstraint(Sketcher.Constraint("DistanceX", 1, 1, 1, 2, Q("48.8 mm")))
sketch14.addConstraint(Sketcher.Constraint("DistanceY", 0, 1, 0, 2, Q("1 mm")))
sketch14.addConstraint(Sketcher.Constraint("DistanceX", 0, 2, -1, 1, Q("24.4 mm")))
sketch14.addConstraint(Sketcher.Constraint("DistanceY", -1, 1, 0, 2, Q("70.83 mm")))
sketch14.addConstraint(Sketcher.Constraint("DistanceY", -1, 1, 4, 2, Q("68.83 mm")))
sketch14.addConstraint(Sketcher.Constraint("DistanceX", 5, 2, 8, 2, Q("1 mm")))
sketch14.addConstraint(Sketcher.Constraint("DistanceX", 9, 2, 12, 2, Q("1 mm")))
pocket9 = body.newObject("PartDesign::Pocket", "Pocket008")
pocket9.Profile = sketch14
pocket9.Type = "ThroughAll"
pocket9.Reversed = True

# Sketch on XZ plane
sketch15 = body.newObject("Sketcher::SketchObject", "Sketch014")
sketch15.AttachmentSupport = (doc.getObject("XZ_Plane"), [""])
sketch15.MapMode = "FlatFace"
sketch15.AttachmentOffset = App.Placement(V(0, 0, -0.125 * 25.4), App.Rotation())
add_polygon(sketch15, [(-24.4, 65.83), (-24.4, 66.83), (24.4, 66.83), (24.4, 65.83)])  # lines 0-3
add_polygon(sketch15, [(-25.4, 63.83), (-25.4, 64.83), (-9.133333, 64.83), (-9.133333, 63.83)])  # lines 4-7
add_polygon(sketch15, [(-8.133333, 63.83), (-8.133333, 64.83), (8.133333, 64.83), (8.133333, 63.83)])  # lines 8-11
add_polygon(sketch15, [(9.133333, 63.83), (9.133333, 64.83), (25.4, 64.83), (25.4, 63.83)])  # lines 12-15
sketch15.addConstraint(Sketcher.Constraint("Vertical", 0))
sketch15.addConstraint(Sketcher.Constraint("Horizontal", 1))
sketch15.addConstraint(Sketcher.Constraint("Vertical", 2))
sketch15.addConstraint(Sketcher.Constraint("Horizontal", 3))
sketch15.addConstraint(Sketcher.Constraint("Vertical", 4))
sketch15.addConstraint(Sketcher.Constraint("Horizontal", 5))
sketch15.addConstraint(Sketcher.Constraint("Vertical", 6))
sketch15.addConstraint(Sketcher.Constraint("Horizontal", 7))
sketch15.addConstraint(Sketcher.Constraint("Vertical", 8))
sketch15.addConstraint(Sketcher.Constraint("Horizontal", 9))
sketch15.addConstraint(Sketcher.Constraint("Vertical", 10))
sketch15.addConstraint(Sketcher.Constraint("Horizontal", 11))
sketch15.addConstraint(Sketcher.Constraint("Vertical", 12))
sketch15.addConstraint(Sketcher.Constraint("Horizontal", 13))
sketch15.addConstraint(Sketcher.Constraint("Vertical", 14))
sketch15.addConstraint(Sketcher.Constraint("Horizontal", 15))
sketch15.addConstraint(Sketcher.Constraint("Symmetric", 5, 2, 12, 2, -2))
sketch15.addConstraint(Sketcher.Constraint("Symmetric", 7, 2, 14, 2, -2))
sketch15.addConstraint(Sketcher.Constraint("Horizontal", 5, 2, 8, 2))
sketch15.addConstraint(Sketcher.Constraint("Horizontal", 7, 2, 10, 2))
sketch15.addConstraint(Sketcher.Constraint("Equal", 7, 9))
sketch15.addConstraint(Sketcher.Constraint("Equal", 2, 4))
sketch15.addConstraint(Sketcher.Constraint("DistanceX", 4, 2, -1, 1, Q("1 in")))
sketch15.addConstraint(Sketcher.Constraint("DistanceX", 1, 1, 1, 2, Q("48.8 mm")))
sketch15.addConstraint(Sketcher.Constraint("DistanceY", 0, 1, 0, 2, Q("1 mm")))
sketch15.addConstraint(Sketcher.Constraint("DistanceX", 0, 2, -1, 1, Q("24.4 mm")))
sketch15.addConstraint(Sketcher.Constraint("DistanceY", -1, 1, 0, 2, Q("66.83 mm")))
sketch15.addConstraint(Sketcher.Constraint("DistanceY", -1, 1, 4, 2, Q("64.83 mm")))
sketch15.addConstraint(Sketcher.Constraint("DistanceX", 5, 2, 8, 2, Q("1 mm")))
sketch15.addConstraint(Sketcher.Constraint("DistanceX", 9, 2, 12, 2, Q("1 mm")))
pocket10 = body.newObject("PartDesign::Pocket", "Pocket009")
pocket10.Profile = sketch15
pocket10.Type = "ThroughAll"
pocket10.Reversed = True

# Sketch on XZ plane
sketch16 = body.newObject("Sketcher::SketchObject", "Sketch015")
sketch16.AttachmentSupport = (doc.getObject("XZ_Plane"), [""])
sketch16.MapMode = "FlatFace"
sketch16.AttachmentOffset = App.Placement(V(0, 0, -0.125 * 25.4), App.Rotation())
add_polygon(sketch16, [(-25.4, 86.83), (-25.4, 124.93), (25.4, 124.93), (25.4, 86.83)])  # lines 0-3
sketch16.addConstraint(Sketcher.Constraint("Vertical", 0))
sketch16.addConstraint(Sketcher.Constraint("Horizontal", 1))
sketch16.addConstraint(Sketcher.Constraint("Vertical", 2))
sketch16.addConstraint(Sketcher.Constraint("Horizontal", 3))
sketch16.addConstraint(Sketcher.Constraint("DistanceX", 1, 1, 1, 2, Q("2 in")))
sketch16.addConstraint(Sketcher.Constraint("DistanceY", 0, 1, 0, 2, Q("1.5 in")))
sketch16.addConstraint(Sketcher.Constraint("DistanceX", 0, 2, -1, 1, Q("1 in")))
sketch16.addConstraint(Sketcher.Constraint("DistanceY", -1, 1, 0, 2, Q("124.93 mm")))
pad6 = body.newObject("PartDesign::Pad", "Pad005")
pad6.Profile = sketch16
pad6.Length = Q("0.125 in")
doc.recompute()

datumplane2 = body.newObject("PartDesign::Plane", "DatumPlane001")
datumplane2.AttachmentSupport = (doc.getObject("XY_Plane"), [""])
datumplane2.MapMode = "FlatFace"
datumplane2.AttachmentOffset = App.Placement(V(0, 0, 52.94), App.Rotation())
mirrored2 = body.newObject("PartDesign::Mirrored", "Mirrored001")
mirrored2.Originals = [pad2, pocket1, pocket2]
mirrored2.MirrorPlane = (datumplane2, [""])
body.Tip = mirrored2

# Sketch on XZ plane
sketch17 = body.newObject("Sketcher::SketchObject", "Sketch016")
sketch17.AttachmentSupport = (doc.getObject("XZ_Plane"), [""])
sketch17.MapMode = "FlatFace"
sketch17.AttachmentOffset = App.Placement(V(0, 0, -0.125 * 25.4), App.Rotation())
add_polygon(sketch17, [(-30.48, 86.83), (-30.48, 93.18), (-25.4, 93.18), (-25.4, 86.83)])  # lines 0-3
sketch17.addConstraint(Sketcher.Constraint("Vertical", 0))
sketch17.addConstraint(Sketcher.Constraint("Horizontal", 1))
sketch17.addConstraint(Sketcher.Constraint("Vertical", 2))
sketch17.addConstraint(Sketcher.Constraint("Horizontal", 3))
sketch17.addConstraint(Sketcher.Constraint("DistanceX", 1, 1, 1, 2, Q("0.2 in")))
sketch17.addConstraint(Sketcher.Constraint("DistanceX", 1, 2, -1, 1, Q("1 in")))
sketch17.addConstraint(Sketcher.Constraint("DistanceY", 0, 1, 0, 2, Q("0.25 in")))
sketch17.addConstraint(Sketcher.Constraint("DistanceY", -1, 1, 0, 2, Q("93.18 mm")))
pad7 = body.newObject("PartDesign::Pad", "Pad006")
pad7.Profile = sketch17
pad7.Length = Q("0.125 in")

# Sketch on XZ plane
sketch18 = body.newObject("Sketcher::SketchObject", "Sketch017")
sketch18.AttachmentSupport = (doc.getObject("XZ_Plane"), [""])
sketch18.MapMode = "FlatFace"
sketch18.AttachmentOffset = App.Placement(V(0, 0, -0.125 * 25.4), App.Rotation())
sketch18.addGeometry(Part.Circle(V(-26.9875, 90.005, 0), V(0, 0, 1), 1.5875), False)
sketch18.addConstraint(Sketcher.Constraint("Diameter", 0, Q("0.125 in")))
sketch18.addConstraint(Sketcher.Constraint("DistanceX", 0, 3, -1, 1, Q("1.0625 in")))
sketch18.addConstraint(Sketcher.Constraint("DistanceY", -1, 1, 0, 3, Q("90.005 mm")))
pocket11 = body.newObject("PartDesign::Pocket", "Pocket010")
pocket11.Profile = sketch18
pocket11.Type = "ThroughAll"
pocket11.Reversed = True

doc.recompute()
